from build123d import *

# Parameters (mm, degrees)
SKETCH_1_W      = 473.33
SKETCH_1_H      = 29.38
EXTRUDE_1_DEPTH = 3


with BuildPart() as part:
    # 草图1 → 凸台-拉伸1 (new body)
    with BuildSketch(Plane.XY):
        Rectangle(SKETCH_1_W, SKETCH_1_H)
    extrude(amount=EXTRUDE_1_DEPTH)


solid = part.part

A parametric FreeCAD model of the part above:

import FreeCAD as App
import Part
import Sketcher
from FreeCAD import Vector
Q = App.Units.Quantity


def add_polygon(sketch, points):
    """Adds a closed chain of lines whose ends are joined by coincident constraints."""
    first, n = sketch.GeometryCount, len(points)
    for a, b in zip(points, points[1:] + points[:1]):
        sketch.addGeometry(Part.LineSegment(App.Vector(*a, 0), App.Vector(*b, 0)), False)
    for i in range(n):
        sketch.addConstraint(Sketcher.Constraint("Coincident", first + i, 2, first + (i + 1) % n, 1))

doc = App.newDocument("Part")
body = doc.addObject("PartDesign::Body", "Body")

# Sketch on XY plane
sketch1 = body.newObject("Sketcher::SketchObject", "Sketch")
sketch1.AttachmentSupport = (doc.getObject("XY_Plane"), [""])
sketch1.MapMode = "FlatFace"
add_polygon(sketch1, [(-237, 15), (-237, -15), (237, -15), (237, 15)])  # lines 0-3
sketch1.addConstraint([
    Sketcher.Constraint("Vertical", 0),
    Sketcher.Constraint("Horizontal", 1),
    Sketcher.Constraint("Vertical", 2),
    Sketcher.Constraint("Horizontal", 3),
    Sketcher.Constraint("Symmetric", 0, 2, 2, 2, -1, 1),
    Sketcher.Constraint("DistanceX", 1, 1, 1, 2, Q("473.33 mm")),
    Sketcher.Constraint("DistanceY", 0, 2, 0, 1, Q("29.38 mm")),
])
pad1 = body.newObject("PartDesign::Pad", "Pad")
pad1.Profile = sketch1
pad1.Length = 3

doc.recompute()
